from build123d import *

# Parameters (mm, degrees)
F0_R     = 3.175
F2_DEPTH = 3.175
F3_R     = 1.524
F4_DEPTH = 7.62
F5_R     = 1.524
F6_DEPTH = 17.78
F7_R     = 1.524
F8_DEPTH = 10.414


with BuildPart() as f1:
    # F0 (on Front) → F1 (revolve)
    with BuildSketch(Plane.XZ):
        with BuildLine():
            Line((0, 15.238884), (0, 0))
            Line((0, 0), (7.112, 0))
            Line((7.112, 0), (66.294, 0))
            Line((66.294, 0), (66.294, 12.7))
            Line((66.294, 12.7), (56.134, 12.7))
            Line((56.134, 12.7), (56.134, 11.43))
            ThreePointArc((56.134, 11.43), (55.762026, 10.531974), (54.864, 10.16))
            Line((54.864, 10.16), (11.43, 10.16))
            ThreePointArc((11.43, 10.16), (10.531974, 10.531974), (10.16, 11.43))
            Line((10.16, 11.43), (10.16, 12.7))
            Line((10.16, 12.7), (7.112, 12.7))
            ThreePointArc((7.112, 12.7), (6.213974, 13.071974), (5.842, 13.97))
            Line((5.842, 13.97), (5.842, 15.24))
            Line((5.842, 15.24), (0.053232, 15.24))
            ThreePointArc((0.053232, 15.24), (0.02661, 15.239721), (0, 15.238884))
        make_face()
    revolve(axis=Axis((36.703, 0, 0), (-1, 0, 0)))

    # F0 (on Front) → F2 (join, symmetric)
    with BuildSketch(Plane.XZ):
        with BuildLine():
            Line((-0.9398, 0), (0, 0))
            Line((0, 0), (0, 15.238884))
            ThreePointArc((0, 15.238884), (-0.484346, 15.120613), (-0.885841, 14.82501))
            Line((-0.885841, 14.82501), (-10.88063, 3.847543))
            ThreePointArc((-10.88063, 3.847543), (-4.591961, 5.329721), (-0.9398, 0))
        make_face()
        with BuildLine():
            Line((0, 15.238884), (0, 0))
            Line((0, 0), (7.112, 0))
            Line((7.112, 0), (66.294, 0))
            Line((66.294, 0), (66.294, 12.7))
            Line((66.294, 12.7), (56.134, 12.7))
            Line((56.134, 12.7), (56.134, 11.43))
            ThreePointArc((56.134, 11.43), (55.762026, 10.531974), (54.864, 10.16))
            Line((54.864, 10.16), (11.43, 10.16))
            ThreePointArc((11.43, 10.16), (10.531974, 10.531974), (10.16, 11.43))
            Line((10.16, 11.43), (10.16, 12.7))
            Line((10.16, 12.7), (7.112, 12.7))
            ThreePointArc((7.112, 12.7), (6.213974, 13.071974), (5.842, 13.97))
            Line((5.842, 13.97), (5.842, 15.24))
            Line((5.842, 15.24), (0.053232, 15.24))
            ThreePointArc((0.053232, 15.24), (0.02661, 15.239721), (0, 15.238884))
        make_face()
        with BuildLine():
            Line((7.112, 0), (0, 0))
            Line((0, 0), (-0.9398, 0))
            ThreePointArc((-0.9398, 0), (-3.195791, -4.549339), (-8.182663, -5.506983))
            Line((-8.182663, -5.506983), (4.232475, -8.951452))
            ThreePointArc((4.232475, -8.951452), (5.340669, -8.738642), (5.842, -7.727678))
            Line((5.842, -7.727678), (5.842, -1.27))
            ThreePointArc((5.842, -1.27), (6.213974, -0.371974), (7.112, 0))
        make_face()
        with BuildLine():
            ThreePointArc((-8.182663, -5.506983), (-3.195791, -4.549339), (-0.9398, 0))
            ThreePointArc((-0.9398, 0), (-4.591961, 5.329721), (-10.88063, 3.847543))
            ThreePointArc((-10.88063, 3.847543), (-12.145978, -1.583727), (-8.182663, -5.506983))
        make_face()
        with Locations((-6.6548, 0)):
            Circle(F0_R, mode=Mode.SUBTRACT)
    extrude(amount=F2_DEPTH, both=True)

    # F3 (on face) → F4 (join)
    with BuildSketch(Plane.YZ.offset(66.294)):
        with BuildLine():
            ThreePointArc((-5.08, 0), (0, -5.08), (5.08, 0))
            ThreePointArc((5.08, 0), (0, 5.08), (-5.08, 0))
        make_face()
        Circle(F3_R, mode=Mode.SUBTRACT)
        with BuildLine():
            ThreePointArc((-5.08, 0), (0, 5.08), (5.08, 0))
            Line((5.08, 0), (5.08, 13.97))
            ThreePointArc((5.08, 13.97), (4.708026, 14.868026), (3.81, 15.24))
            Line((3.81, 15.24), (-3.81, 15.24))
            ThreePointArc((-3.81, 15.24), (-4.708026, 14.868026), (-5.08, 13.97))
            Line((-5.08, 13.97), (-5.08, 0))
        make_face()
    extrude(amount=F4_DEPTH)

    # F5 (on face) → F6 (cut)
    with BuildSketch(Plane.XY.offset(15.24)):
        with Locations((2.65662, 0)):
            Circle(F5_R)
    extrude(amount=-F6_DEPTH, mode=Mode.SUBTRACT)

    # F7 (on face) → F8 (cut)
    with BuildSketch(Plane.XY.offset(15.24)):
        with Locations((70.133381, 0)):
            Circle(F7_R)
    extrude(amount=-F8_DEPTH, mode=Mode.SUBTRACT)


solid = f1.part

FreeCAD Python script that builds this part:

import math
import FreeCAD as App
import Part
import Sketcher

V = App.Vector
Q = App.Units.Quantity

doc = App.newDocument("Part")
body = doc.addObject("PartDesign::Body", "Body")

# Sketch on XZ plane
sketch1 = body.newObject("Sketcher::SketchObject", "Sketch")
sketch1.AttachmentSupport = (doc.getObject("XZ_Plane"), [""])
sketch1.MapMode = "FlatFace"
sketch1.addGeometry([
    Part.LineSegment(V(0, 15.238884, 0), V(0, 0, 0)),  # 0
    Part.LineSegment(V(0, 0, 0), V(66.294, 0, 0)),  # 1
    Part.LineSegment(V(66.294, 0, 0), V(66.294, 12.7, 0)),  # 2
    Part.LineSegment(V(66.294, 12.7, 0), V(56.134, 12.7, 0)),  # 3
    Part.LineSegment(V(56.134, 12.7, 0), V(56.134, 11.43, 0)),  # 4
    Part.ArcOfCircle(Part.Circle(V(54.864001, 11.429999, 0), V(0, 0, 1), 1.269999), math.radians(-90.00006), math.radians(0.00006)),  # 5
    Part.LineSegment(V(54.864, 10.16, 0), V(11.43, 10.16, 0)),  # 6
    Part.ArcOfCircle(Part.Circle(V(11.429999, 11.429999, 0), V(0, 0, 1), 1.269999), math.radians(179.99994), math.radians(270.00006)),  # 7
    Part.LineSegment(V(10.16, 11.43, 0), V(10.16, 12.7, 0)),  # 8
    Part.LineSegment(V(10.16, 12.7, 0), V(7.112, 12.7, 0)),  # 9
    Part.ArcOfCircle(Part.Circle(V(7.111999, 13.969999, 0), V(0, 0, 1), 1.269999), math.radians(179.99994), math.radians(270.00006)),  # 10
    Part.LineSegment(V(5.842, 13.97, 0), V(5.842, 15.24, 0)),  # 11
    Part.LineSegment(V(5.842, 15.24, 0), V(0.053232, 15.24, 0)),  # 12
    Part.ArcOfCircle(Part.Circle(V(0.053229, 13.970041, 0), V(0, 0, 1), 1.269959), math.radians(89.999854), math.radians(92.402187)),  # 13
], False)
sketch1.addConstraint([
    Sketcher.Constraint("Coincident", 0, 2, 1, 1),
    Sketcher.Constraint("Coincident", 1, 2, 2, 1),
    Sketcher.Constraint("Coincident", 2, 2, 3, 1),
    Sketcher.Constraint("Coincident", 3, 2, 4, 1),
    Sketcher.Constraint("Coincident", 4, 2, 5, 2),
    Sketcher.Constraint("Coincident", 5, 1, 6, 1),
    Sketcher.Constraint("Coincident", 6, 2, 7, 2),
    Sketcher.Constraint("Coincident", 7, 1, 8, 1),
    Sketcher.Constraint("Coincident", 8, 2, 9, 1),
    Sketcher.Constraint("Coincident", 9, 2, 10, 2),
    Sketcher.Constraint("Coincident", 10, 1, 11, 1),
    Sketcher.Constraint("Coincident", 11, 2, 12, 1),
    Sketcher.Constraint("Coincident", 12, 2, 13, 1),
    Sketcher.Constraint("Coincident", 13, 2, 0, 1),
    Sketcher.Constraint("Vertical", 0),
    Sketcher.Constraint("Horizontal", 1),
    Sketcher.Constraint("Vertical", 2),
    Sketcher.Constraint("Horizontal", 3),
    Sketcher.Constraint("Vertical", 4),
    Sketcher.Constraint("Horizontal", 6),
    Sketcher.Constraint("Vertical", 8),
    Sketcher.Constraint("Horizontal", 9),
    Sketcher.Constraint("Vertical", 11),
    Sketcher.Constraint("Horizontal", 12),
    Sketcher.Constraint("Coincident", 0, 2, -1, 1),
    Sketcher.Constraint("Radius", 5, Q("0.0499999 in")),
    Sketcher.Constraint("Radius", 7, Q("0.0499999 in")),
    Sketcher.Constraint("Radius", 10, Q("0.0499999 in")),
    Sketcher.Constraint("DistanceX", 3, 2, 3, 1, Q("0.4 in")),
    Sketcher.Constraint("DistanceY", 2, 1, 2, 2, Q("0.5 in")),
    Sketcher.Constraint("DistanceX", 1, 1, 1, 2, Q("2.61 in")),
    Sketcher.Constraint("DistanceX", 6, 2, 6, 1, Q("1.71 in")),
    Sketcher.Constraint("DistanceX", 9, 2, 9, 1, Q("0.12 in")),
    Sketcher.Constraint("DistanceY", 4, 2, 4, 1, Q("0.05 in")),
    Sketcher.Constraint("DistanceY", 8, 1, 8, 2, Q("0.05 in")),
    Sketcher.Constraint("DistanceY", 11, 1, 11, 2, Q("0.05 in")),
    Sketcher.Constraint("DistanceY", -1, 1, 5, 1, Q("0.4 in")),
    Sketcher.Constraint("DistanceX", -1, 1, 7, 1, Q("0.4 in")),
    Sketcher.Constraint("DistanceY", -1, 1, 8, 2, Q("0.5 in")),
    Sketcher.Constraint("DistanceY", -1, 1, 11, 2, Q("0.6 in")),
    Sketcher.Constraint("DistanceX", -1, 1, 10, 3, Q("0.2799999 in")),
    Sketcher.Constraint("DistanceX", -1, 1, 5, 1, Q("2.16 in")),
    Sketcher.Constraint("Radius", 13, 1.269959),
    Sketcher.Constraint("DistanceX", 12, 2, 12, 1, 5.788768),
    Sketcher.Constraint("DistanceY", 0, 2, 0, 1, 15.238884),
])
revolution = body.newObject("PartDesign::Revolution", "Revolution")
revolution.Profile = sketch1
revolution.ReferenceAxis = (sketch1, ["H_Axis"])
revolution.Angle = 360

# Sketch on XZ plane
sketch2 = body.newObject("Sketcher::SketchObject", "Sketch001")
sketch2.AttachmentSupport = (doc.getObject("XZ_Plane"), [""])
sketch2.MapMode = "FlatFace"
sketch2.addGeometry([
    Part.LineSegment(V(7.112, 0, 0), V(66.294, 0, 0)),  # 0
    Part.LineSegment(V(66.294, 0, 0), V(66.294, 12.7, 0)),  # 1
    Part.LineSegment(V(66.294, 12.7, 0), V(56.134, 12.7, 0)),  # 2
    Part.LineSegment(V(56.134, 12.7, 0), V(56.134, 11.43, 0)),  # 3
    Part.ArcOfCircle(Part.Circle(V(54.864001, 11.429999, 0), V(0, 0, 1), 1.269999), math.radians(-90.00006), math.radians(0.00006)),  # 4
    Part.LineSegment(V(54.864, 10.16, 0), V(11.43, 10.16, 0)),  # 5
    Part.ArcOfCircle(Part.Circle(V(11.429999, 11.429999, 0), V(0, 0, 1), 1.269999), math.radians(179.99994), math.radians(270.00006)),  # 6
    Part.LineSegment(V(10.16, 11.43, 0), V(10.16, 12.7, 0)),  # 7
    Part.LineSegment(V(10.16, 12.7, 0), V(7.112, 12.7, 0)),  # 8
    Part.ArcOfCircle(Part.Circle(V(7.111999, 13.969999, 0), V(0, 0, 1), 1.269999), math.radians(179.99994), math.radians(270.00006)),  # 9
    Part.LineSegment(V(5.842, 13.97, 0), V(5.842, 15.24, 0)),  # 10
    Part.LineSegment(V(5.842, 15.24, 0), V(0.053232, 15.24, 0)),  # 11
    Part.ArcOfCircle(Part.Circle(V(0.053229, 13.970041, 0), V(0, 0, 1), 1.269959), math.radians(89.999854), math.radians(92.402187)),  # 12
    Part.ArcOfCircle(Part.Circle(V(0.053232, 13.970001, 0), V(0, 0, 1), 1.269999), math.radians(92.402241), math.radians(137.682686)),  # 13
    Part.LineSegment(V(-0.885841, 14.82501, 0), V(-10.88063, 3.847543, 0)),  # 14
    Part.ArcOfCircle(Part.Circle(V(-6.6548, 0, 0), V(0, 0, 1), 5.715), math.radians(137.682696), math.radians(254.493803)),  # 15
    Part.LineSegment(V(-8.182663, -5.506983, 0), V(4.232475, -8.951452, 0)),  # 16
    Part.ArcOfCircle(Part.Circle(V(4.572, -7.727678, 0), V(0, 0, 1), 1.27), math.radians(-105.5062), math.radians(0.000008)),  # 17
    Part.LineSegment(V(5.842, -7.727678, 0), V(5.842, -1.27, 0)),  # 18
    Part.ArcOfCircle(Part.Circle(V(7.111999, -1.269999, 0), V(0, 0, 1), 1.269999), math.radians(89.99994), math.radians(180.00006)),  # 19
    Part.Circle(V(-6.6548, 0, 0), V(0, 0, 1), 3.175),  # 20
], False)
sketch2.addConstraint([
    Sketcher.Constraint("Coincident", 0, 2, 1, 1),
    Sketcher.Constraint("Coincident", 1, 2, 2, 1),
    Sketcher.Constraint("Coincident", 2, 2, 3, 1),
    Sketcher.Constraint("Coincident", 3, 2, 4, 2),
    Sketcher.Constraint("Coincident", 4, 1, 5, 1),
    Sketcher.Constraint("Coincident", 5, 2, 6, 2),
    Sketcher.Constraint("Coincident", 6, 1, 7, 1),
    Sketcher.Constraint("Coincident", 7, 2, 8, 1),
    Sketcher.Constraint("Coincident", 8, 2, 9, 2),
    Sketcher.Constraint("Coincident", 9, 1, 10, 1),
    Sketcher.Constraint("Coincident", 10, 2, 11, 1),
    Sketcher.Constraint("Coincident", 11, 2, 12, 1),
    Sketcher.Constraint("Coincident", 12, 2, 13, 1),
    Sketcher.Constraint("Coincident", 13, 2, 14, 1),
    Sketcher.Constraint("Coincident", 14, 2, 15, 1),
    Sketcher.Constraint("Coincident", 15, 2, 16, 1),
    Sketcher.Constraint("Coincident", 16, 2, 17, 1),
    Sketcher.Constraint("Coincident", 17, 2, 18, 1),
    Sketcher.Constraint("Coincident", 18, 2, 19, 2),
    Sketcher.Constraint("Coincident", 19, 1, 0, 1),
    Sketcher.Constraint("Horizontal", 0),
    Sketcher.Constraint("Vertical", 1),
    Sketcher.Constraint("Horizontal", 2),
    Sketcher.Constraint("Vertical", 3),
    Sketcher.Constraint("Horizontal", 5),
    Sketcher.Constraint("Vertical", 7),
    Sketcher.Constraint("Horizontal", 8),
    Sketcher.Constraint("Vertical", 10),
    Sketcher.Constraint("Horizontal", 11),
    Sketcher.Constraint("Vertical", 18),
    Sketcher.Constraint("Coincident", 20, 3, 15, 3),
    Sketcher.Constraint("PointOnObject", 15, 3, -1),
    Sketcher.Constraint("PointOnObject", 0, 2, -1),
    Sketcher.Constraint("PointOnObject", 12, 2, -2),
    Sketcher.Constraint("Diameter", 20, Q("0.25 in")),
    Sketcher.Constraint("Radius", 4, Q("0.0499999 in")),
    Sketcher.Constraint("Radius", 6, Q("0.0499999 in")),
    Sketcher.Constraint("Radius", 9, Q("0.0499999 in")),
    Sketcher.Constraint("Radius", 13, Q("0.05 in")),
    Sketcher.Constraint("Radius", 17, Q("0.05 in")),
    Sketcher.Constraint("Radius", 19, Q("0.0499999 in")),
    Sketcher.Constraint("DistanceX", 2, 2, 2, 1, Q("0.4 in")),
    Sketcher.Constraint("DistanceY", 1, 1, 1, 2, Q("0.5 in")),
    Sketcher.Constraint("Radius", 15, Q("0.225 in")),
    Sketcher.Constraint("DistanceX", 0, 1, 0, 2, Q("2.33 in")),
    Sketcher.Constraint("DistanceX", 5, 2, 5, 1, Q("1.71 in")),
    Sketcher.Constraint("DistanceX", 8, 2, 8, 1, Q("0.12 in")),
    Sketcher.Constraint("DistanceY", 3, 2, 3, 1, Q("0.05 in")),
    Sketcher.Constraint("DistanceY", 7, 1, 7, 2, Q("0.05 in")),
    Sketcher.Constraint("DistanceY", 10, 1, 10, 2, Q("0.05 in")),
    Sketcher.Constraint("DistanceY", -1, 1, 4, 1, Q("0.4 in")),
    Sketcher.Constraint("DistanceX", -1, 1, 6, 1, Q("0.4 in")),
    Sketcher.Constraint("DistanceY", -1, 1, 7, 2, Q("0.5 in")),
    Sketcher.Constraint("DistanceY", -1, 1, 10, 2, Q("0.6 in")),
    Sketcher.Constraint("DistanceY", 6, 3, 13, 3, Q("0.1000001 in")),
    Sketcher.Constraint("DistanceX", 17, 3, 9, 3, Q("0.0999999 in")),
    Sketcher.Constraint("DistanceX", 17, 3, 19, 1, Q("0.1 in")),
    Sketcher.Constraint("DistanceX", -1, 1, 4, 3, Q("2.1600001 in")),
    Sketcher.Constraint("DistanceX", -1, 1, 4, 1, Q("2.16 in")),
    Sketcher.Constraint("DistanceY", 18, 2, -1, 1, Q("0.05 in")),
    Sketcher.Constraint("DistanceX", 15, 3, -1, 1, Q("0.262 in")),
    Sketcher.Constraint("Radius", 12, 1.269959),
    Sketcher.Constraint("Distance", 16, 12.884099),
    Sketcher.Constraint("DistanceY", 14, 2, 12, 3, 10.122498),
    Sketcher.Constraint("DistanceX", 11, 2, 11, 1, 5.788768),
    Sketcher.Constraint("DistanceY", 18, 1, 18, 2, 6.457678),
    Sketcher.Constraint("DistanceX", -1, 1, 12, 3, 0.053229),
    Sketcher.Constraint("DistanceY", 17, 3, -1, 1, 7.727678),
    Sketcher.Constraint("DistanceX", 13, 2, -1, 1, 0.885841),
    Sketcher.Constraint("DistanceX", 15, 2, 19, 3, 15.294662),
])
pad1 = body.newObject("PartDesign::Pad", "Pad")
pad1.Profile = sketch2
pad1.Length = Q("0.25 in")
pad1.Midplane = True

# Sketch on YZ plane
sketch3 = body.newObject("Sketcher::SketchObject", "Sketch002")
sketch3.AttachmentSupport = (doc.getObject("YZ_Plane"), [""])
sketch3.MapMode = "FlatFace"
sketch3.AttachmentOffset = App.Placement(V(0, 0, 2.61 * 25.4), App.Rotation())
sketch3.addGeometry([
    Part.ArcOfCircle(Part.Circle(V(0, 0, 0), V(0, 0, 1), 5.1), math.radians(180), math.radians(360)),  # 0
    Part.LineSegment(V(5.1, 0, 0), V(5.1, 14, 0)),  # 1
    Part.ArcOfCircle(Part.Circle(V(3.8, 14, 0), V(0, 0, 1), 1.3), math.radians(0), math.radians(90)),  # 2
    Part.LineSegment(V(3.8, 15.2, 0), V(-3.8, 15.2, 0)),  # 3
    Part.ArcOfCircle(Part.Circle(V(-3.8, 14, 0), V(0, 0, 1), 1.3), math.radians(90), math.radians(180)),  # 4
    Part.LineSegment(V(-5.1, 14, 0), V(-5.1, 0, 0)),  # 5
    Part.Circle(V(0, 0, 0), V(0, 0, 1), 1.5),  # 6
], False)
sketch3.addConstraint([
    Sketcher.Constraint("Tangent", 0, 2, 1, 1),
    Sketcher.Constraint("Tangent", 1, 2, 2, 1),
    Sketcher.Constraint("Tangent", 2, 2, 3, 1),
    Sketcher.Constraint("Tangent", 3, 2, 4, 1),
    Sketcher.Constraint("Tangent", 4, 2, 5, 1),
    Sketcher.Constraint("Tangent", 5, 2, 0, 1),
    Sketcher.Constraint("Vertical", 1),
    Sketcher.Constraint("Horizontal", 3),
    Sketcher.Constraint("Vertical", 5),
    Sketcher.Constraint("Coincident", 0, 3, -1, 1),
    Sketcher.Constraint("Coincident", 6, 3, -1, 1),
    Sketcher.Constraint("Equal", 2, 4),
    Sketcher.Constraint("Radius", 0, Q("0.2 in")),
    Sketcher.Constraint("Diameter", 6, Q("0.12 in")),
    Sketcher.Constraint("Radius", 2, Q("0.0499999 in")),
    Sketcher.Constraint("DistanceY", 1, 1, 1, 2, Q("0.55 in")),
])
pad2 = body.newObject("PartDesign::Pad", "Pad001")
pad2.Profile = sketch3
pad2.Length = Q("0.3 in")

# Sketch on XY plane
sketch4 = body.newObject("Sketcher::SketchObject", "Sketch003")
sketch4.AttachmentSupport = (doc.getObject("XY_Plane"), [""])
sketch4.MapMode = "FlatFace"
sketch4.AttachmentOffset = App.Placement(V(0, 0, 0.6 * 25.4), App.Rotation())
sketch4.addGeometry(Part.Circle(V(2.7, 0, 0), V(0, 0, 1), 1.5), False)
sketch4.addConstraint([
    Sketcher.Constraint("PointOnObject", 0, 3, -1),
    Sketcher.Constraint("Diameter", 0, Q("0.12 in")),
    Sketcher.Constraint("DistanceX", -1, 1, 0, 3, 2.65662),
])
pocket1 = body.newObject("PartDesign::Pocket", "Pocket")
pocket1.Profile = sketch4
pocket1.Length = Q("0.7 in")

# Sketch on XY plane
sketch5 = body.newObject("Sketcher::SketchObject", "Sketch004")
sketch5.AttachmentSupport = (doc.getObject("XY_Plane"), [""])
sketch5.MapMode = "FlatFace"
sketch5.AttachmentOffset = App.Placement(V(0, 0, 0.6 * 25.4), App.Rotation())
sketch5.addGeometry(Part.Circle(V(70.1, 0, 0), V(0, 0, 1), 1.5), False)
sketch5.addConstraint([
    Sketcher.Constraint("PointOnObject", 0, 3, -1),
    Sketcher.Constraint("Diameter", 0, Q("0.12 in")),
    Sketcher.Constraint("DistanceX", -1, 1, 0, 3, 70.133381),
])
pocket2 = body.newObject("PartDesign::Pocket", "Pocket001")
pocket2.Profile = sketch5
pocket2.Length = Q("0.41 in")

doc.recompute()
